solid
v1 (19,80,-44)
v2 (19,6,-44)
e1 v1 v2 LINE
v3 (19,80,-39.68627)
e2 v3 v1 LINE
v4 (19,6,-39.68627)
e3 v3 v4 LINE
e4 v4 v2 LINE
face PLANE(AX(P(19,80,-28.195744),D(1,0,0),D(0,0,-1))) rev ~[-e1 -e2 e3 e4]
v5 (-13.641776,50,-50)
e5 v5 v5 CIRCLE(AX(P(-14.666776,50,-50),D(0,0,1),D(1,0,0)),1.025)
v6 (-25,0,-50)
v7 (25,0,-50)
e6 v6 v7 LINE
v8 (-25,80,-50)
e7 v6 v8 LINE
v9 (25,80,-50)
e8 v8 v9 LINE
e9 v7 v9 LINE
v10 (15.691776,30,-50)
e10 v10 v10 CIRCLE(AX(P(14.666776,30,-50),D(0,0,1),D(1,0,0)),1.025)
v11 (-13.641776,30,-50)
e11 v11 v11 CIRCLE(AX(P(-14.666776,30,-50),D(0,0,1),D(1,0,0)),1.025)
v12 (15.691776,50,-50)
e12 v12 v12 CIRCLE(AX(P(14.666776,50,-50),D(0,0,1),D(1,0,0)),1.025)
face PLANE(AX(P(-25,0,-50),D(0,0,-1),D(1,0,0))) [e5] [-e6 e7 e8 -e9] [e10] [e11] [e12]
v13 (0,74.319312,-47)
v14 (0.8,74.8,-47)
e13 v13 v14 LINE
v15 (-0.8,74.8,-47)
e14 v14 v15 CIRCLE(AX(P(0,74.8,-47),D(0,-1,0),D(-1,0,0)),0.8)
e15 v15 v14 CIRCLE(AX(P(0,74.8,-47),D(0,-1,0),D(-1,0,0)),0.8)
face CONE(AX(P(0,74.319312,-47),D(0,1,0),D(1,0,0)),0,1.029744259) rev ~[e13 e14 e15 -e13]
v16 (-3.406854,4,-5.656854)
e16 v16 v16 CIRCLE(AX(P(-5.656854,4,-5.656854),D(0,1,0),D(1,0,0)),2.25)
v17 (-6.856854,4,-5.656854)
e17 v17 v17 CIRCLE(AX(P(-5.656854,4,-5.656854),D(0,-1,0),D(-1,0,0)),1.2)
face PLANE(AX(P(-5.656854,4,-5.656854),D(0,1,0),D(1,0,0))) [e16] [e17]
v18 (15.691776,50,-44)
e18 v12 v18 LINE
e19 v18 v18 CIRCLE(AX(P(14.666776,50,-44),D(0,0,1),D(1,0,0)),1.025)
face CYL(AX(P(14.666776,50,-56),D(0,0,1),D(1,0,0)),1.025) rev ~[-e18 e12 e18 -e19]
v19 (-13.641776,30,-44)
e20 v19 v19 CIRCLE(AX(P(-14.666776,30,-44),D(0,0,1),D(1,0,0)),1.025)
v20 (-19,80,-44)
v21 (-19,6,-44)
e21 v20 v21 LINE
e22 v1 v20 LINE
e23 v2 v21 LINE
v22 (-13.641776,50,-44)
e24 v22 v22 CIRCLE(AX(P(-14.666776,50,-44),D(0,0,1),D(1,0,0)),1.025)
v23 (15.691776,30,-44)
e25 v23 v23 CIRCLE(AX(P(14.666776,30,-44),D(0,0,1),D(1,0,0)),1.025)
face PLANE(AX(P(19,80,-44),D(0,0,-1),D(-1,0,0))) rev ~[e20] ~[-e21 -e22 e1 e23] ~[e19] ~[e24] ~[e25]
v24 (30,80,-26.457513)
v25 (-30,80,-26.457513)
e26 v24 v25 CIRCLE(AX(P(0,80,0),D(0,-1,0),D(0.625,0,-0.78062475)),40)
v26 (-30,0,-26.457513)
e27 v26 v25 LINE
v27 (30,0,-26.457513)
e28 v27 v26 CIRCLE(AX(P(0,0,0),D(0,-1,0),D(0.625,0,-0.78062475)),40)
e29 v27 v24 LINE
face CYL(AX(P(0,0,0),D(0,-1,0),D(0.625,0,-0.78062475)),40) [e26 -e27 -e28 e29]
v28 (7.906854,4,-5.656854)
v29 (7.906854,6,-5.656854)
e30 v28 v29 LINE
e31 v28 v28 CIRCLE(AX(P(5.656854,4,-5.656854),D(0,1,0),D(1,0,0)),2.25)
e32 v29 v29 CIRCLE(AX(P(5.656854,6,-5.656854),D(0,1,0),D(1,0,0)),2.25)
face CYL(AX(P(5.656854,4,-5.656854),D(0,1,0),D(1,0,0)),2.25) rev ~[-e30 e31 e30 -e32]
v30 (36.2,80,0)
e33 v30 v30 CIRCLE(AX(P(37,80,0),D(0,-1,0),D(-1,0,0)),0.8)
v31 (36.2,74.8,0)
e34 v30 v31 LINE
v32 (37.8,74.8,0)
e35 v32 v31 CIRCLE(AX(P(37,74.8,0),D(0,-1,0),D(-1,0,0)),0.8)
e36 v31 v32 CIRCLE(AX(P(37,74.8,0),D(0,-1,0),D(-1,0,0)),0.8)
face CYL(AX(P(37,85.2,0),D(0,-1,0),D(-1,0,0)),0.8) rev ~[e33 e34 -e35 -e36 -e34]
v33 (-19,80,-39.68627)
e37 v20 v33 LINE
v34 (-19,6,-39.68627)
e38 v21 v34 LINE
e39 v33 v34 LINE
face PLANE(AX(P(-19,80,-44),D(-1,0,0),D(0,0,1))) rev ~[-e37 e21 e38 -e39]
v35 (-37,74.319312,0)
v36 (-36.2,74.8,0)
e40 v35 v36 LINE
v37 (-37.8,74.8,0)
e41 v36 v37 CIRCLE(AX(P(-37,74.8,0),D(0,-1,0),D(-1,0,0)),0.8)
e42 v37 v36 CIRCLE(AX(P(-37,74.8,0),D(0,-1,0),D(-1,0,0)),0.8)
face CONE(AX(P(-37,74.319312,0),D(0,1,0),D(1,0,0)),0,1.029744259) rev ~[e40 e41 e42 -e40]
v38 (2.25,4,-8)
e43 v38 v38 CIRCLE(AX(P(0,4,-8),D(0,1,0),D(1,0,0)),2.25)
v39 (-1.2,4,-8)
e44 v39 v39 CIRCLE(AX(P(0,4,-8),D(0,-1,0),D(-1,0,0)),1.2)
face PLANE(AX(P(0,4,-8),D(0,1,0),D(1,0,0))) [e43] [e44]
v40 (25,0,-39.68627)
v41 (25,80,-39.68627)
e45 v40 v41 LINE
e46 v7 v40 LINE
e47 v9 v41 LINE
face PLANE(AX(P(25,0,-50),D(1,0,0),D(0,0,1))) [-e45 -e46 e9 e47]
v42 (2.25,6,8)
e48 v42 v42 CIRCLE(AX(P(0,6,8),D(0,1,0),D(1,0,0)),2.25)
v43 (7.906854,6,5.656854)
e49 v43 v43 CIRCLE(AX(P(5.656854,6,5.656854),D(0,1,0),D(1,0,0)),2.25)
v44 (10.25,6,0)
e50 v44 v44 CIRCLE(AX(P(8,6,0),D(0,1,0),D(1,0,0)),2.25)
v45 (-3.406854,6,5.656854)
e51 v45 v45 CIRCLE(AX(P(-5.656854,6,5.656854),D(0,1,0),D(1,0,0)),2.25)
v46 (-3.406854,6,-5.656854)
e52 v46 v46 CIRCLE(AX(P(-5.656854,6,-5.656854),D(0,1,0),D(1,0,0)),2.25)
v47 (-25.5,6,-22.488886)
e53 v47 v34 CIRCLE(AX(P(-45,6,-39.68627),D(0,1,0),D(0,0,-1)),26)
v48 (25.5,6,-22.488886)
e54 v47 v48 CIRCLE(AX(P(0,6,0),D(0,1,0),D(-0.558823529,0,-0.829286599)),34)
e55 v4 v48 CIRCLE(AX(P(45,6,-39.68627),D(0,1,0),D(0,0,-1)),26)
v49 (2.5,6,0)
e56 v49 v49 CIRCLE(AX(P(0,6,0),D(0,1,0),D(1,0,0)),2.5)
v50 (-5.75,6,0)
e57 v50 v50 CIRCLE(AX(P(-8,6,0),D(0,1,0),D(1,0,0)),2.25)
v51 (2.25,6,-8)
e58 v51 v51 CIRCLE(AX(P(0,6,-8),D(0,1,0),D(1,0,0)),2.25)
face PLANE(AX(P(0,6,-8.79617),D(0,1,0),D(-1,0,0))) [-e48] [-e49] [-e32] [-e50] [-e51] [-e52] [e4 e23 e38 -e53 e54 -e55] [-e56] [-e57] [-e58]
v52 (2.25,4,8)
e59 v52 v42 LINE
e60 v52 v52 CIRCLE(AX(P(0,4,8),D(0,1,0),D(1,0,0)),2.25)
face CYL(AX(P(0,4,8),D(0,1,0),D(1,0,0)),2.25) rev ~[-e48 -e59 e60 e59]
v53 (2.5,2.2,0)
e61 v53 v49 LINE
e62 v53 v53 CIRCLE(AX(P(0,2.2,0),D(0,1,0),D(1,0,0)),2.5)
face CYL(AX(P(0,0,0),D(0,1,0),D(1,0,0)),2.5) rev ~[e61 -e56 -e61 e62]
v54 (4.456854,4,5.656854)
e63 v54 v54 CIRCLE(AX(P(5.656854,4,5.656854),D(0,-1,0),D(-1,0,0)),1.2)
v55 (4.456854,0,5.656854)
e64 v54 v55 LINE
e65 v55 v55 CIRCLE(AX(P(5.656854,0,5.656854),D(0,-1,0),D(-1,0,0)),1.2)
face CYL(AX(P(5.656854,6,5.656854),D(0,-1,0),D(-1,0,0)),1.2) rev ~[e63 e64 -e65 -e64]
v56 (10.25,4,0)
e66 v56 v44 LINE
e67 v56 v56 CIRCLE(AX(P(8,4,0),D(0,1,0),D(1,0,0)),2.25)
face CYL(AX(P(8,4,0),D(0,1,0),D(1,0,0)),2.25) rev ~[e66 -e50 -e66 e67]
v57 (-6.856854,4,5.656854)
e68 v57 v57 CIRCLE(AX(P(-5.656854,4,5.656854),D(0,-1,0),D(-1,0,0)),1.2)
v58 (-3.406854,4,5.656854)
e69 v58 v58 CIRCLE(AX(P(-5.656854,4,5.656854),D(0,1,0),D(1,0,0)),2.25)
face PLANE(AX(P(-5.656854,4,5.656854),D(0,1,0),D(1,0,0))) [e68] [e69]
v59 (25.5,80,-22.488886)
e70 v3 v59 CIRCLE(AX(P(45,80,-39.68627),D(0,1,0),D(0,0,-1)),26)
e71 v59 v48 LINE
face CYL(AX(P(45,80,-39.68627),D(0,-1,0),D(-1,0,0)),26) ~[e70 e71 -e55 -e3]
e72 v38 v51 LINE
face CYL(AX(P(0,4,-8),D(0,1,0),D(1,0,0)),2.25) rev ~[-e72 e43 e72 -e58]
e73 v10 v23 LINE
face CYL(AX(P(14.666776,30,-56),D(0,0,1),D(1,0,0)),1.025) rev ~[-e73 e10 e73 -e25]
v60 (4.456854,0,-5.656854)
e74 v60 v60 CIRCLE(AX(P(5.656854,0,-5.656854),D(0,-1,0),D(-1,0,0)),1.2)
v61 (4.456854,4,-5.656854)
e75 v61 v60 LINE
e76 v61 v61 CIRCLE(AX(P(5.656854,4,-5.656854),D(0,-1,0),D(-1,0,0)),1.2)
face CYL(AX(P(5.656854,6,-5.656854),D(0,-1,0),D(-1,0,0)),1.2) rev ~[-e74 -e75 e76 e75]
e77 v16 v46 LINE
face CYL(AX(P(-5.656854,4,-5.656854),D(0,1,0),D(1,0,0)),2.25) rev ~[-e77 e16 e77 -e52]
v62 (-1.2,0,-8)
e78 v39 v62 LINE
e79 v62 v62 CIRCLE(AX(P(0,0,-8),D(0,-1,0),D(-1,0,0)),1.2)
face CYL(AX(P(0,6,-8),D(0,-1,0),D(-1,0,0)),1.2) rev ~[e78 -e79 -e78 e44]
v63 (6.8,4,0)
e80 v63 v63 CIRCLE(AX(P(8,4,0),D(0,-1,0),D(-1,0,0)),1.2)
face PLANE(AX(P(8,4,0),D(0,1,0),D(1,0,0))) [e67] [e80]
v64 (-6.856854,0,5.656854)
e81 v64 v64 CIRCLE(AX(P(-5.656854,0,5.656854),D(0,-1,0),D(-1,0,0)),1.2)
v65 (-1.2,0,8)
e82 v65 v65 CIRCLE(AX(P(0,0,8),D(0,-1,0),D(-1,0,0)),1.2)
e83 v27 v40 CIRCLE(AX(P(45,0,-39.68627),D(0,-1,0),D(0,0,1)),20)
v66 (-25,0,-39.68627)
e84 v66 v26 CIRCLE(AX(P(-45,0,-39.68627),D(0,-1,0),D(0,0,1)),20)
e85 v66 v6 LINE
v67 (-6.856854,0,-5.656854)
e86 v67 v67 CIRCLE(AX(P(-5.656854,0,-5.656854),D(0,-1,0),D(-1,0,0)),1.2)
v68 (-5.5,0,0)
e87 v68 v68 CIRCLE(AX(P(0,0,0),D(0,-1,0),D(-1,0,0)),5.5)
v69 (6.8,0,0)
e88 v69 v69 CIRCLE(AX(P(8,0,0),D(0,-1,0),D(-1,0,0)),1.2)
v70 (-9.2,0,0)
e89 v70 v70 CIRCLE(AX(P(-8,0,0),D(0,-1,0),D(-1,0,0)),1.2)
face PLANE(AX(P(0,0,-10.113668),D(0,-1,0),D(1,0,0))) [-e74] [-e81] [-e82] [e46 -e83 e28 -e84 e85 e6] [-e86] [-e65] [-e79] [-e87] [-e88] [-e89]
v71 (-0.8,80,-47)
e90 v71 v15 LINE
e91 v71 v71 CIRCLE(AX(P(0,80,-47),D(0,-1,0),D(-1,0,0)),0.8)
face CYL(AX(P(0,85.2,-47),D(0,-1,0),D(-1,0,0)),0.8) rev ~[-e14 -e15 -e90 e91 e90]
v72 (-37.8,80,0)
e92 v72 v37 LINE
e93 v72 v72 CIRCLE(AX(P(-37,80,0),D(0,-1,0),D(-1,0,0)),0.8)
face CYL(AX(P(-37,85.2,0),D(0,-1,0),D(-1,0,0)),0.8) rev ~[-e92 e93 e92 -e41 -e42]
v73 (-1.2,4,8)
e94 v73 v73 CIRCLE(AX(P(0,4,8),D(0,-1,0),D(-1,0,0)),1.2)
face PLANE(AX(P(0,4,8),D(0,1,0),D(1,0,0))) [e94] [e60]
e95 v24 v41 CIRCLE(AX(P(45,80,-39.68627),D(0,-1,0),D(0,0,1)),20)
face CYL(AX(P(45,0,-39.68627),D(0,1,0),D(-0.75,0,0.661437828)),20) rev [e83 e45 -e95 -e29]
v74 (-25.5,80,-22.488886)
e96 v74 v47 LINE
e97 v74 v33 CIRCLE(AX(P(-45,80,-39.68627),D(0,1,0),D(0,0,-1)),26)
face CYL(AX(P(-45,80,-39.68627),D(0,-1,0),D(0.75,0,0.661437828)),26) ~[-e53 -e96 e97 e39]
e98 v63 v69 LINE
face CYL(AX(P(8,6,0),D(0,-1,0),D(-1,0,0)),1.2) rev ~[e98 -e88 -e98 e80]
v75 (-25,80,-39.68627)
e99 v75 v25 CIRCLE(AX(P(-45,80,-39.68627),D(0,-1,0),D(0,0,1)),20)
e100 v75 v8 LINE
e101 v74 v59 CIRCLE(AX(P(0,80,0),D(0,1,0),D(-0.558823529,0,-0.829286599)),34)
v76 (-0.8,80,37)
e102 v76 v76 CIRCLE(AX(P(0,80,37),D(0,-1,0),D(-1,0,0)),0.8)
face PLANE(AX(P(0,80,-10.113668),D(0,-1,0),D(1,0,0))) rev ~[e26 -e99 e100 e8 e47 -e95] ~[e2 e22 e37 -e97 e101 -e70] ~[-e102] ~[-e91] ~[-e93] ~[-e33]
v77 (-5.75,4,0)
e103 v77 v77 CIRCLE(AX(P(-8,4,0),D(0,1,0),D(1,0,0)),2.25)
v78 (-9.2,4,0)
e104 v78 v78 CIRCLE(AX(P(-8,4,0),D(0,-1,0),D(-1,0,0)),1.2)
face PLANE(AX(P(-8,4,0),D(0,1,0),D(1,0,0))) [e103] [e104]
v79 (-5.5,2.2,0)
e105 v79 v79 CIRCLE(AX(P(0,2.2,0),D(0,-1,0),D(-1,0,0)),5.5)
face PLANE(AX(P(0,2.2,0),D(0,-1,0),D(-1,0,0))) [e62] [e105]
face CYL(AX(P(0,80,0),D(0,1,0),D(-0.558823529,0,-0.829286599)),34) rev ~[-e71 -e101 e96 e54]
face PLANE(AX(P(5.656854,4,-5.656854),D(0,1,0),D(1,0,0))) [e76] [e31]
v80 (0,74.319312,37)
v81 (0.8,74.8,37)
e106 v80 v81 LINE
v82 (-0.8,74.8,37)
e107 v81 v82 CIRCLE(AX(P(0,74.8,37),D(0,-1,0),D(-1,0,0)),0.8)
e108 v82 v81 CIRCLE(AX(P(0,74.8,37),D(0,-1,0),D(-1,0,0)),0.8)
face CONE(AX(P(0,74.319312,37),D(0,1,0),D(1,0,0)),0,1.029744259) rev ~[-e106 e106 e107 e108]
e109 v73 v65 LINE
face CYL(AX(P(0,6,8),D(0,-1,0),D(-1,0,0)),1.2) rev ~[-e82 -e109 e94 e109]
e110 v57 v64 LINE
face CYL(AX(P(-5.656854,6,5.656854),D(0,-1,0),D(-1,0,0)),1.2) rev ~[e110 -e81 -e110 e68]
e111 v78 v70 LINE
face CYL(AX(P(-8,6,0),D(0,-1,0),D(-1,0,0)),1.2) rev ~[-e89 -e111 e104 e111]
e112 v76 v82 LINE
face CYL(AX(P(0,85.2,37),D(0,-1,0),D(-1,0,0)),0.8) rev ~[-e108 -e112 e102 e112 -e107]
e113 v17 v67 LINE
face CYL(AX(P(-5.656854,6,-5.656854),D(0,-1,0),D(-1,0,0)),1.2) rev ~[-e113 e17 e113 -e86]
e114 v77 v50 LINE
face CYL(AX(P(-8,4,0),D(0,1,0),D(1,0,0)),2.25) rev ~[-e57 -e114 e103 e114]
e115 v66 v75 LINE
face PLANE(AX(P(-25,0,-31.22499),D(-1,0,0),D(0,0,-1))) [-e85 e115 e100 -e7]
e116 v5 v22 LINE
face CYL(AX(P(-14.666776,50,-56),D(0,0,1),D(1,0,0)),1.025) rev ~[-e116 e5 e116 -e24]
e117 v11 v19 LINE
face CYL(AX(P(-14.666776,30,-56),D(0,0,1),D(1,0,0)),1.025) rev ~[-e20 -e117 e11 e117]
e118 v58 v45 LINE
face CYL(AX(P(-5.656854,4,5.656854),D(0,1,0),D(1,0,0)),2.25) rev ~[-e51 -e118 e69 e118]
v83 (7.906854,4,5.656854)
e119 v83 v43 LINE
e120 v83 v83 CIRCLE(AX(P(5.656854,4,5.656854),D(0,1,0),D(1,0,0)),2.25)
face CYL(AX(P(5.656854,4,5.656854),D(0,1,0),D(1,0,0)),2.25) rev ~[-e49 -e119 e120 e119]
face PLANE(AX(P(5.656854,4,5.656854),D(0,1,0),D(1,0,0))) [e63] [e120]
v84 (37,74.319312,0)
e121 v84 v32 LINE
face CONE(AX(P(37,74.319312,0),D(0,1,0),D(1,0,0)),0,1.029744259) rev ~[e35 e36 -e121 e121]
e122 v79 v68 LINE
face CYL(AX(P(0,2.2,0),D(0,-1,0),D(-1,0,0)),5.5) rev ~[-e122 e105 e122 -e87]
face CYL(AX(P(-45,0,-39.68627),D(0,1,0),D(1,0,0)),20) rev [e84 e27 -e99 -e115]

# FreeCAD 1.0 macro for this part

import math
import FreeCAD as App
import Part
import Sketcher

V = App.Vector


def edges_at(feature, points):
    """Names of the edges that pass closest to the given points."""
    edges = feature.Shape.Edges
    near = lambda p: min(range(len(edges)), key=lambda i: edges[i].distToShape(Part.Vertex(*p))[0])
    return sorted({f"Edge{near(p) + 1}" for p in points})

doc = App.newDocument("Part")
params = doc.addObject("Spreadsheet::Sheet", "Params")
for row, (alias, value) in enumerate([
    ("sketch1_radius", "40 mm"),
    ("sketch1_width", "50 mm"),
    ("pad1_length", "80 mm"),
    ("sketch2_radius", "34 mm"),
    ("sketch2_width", "38 mm"),
    ("pocket1_length", "74 mm"),
    ("sketch3_diameter", "2.05 mm"),
    ("hole_diameter", "2.05 mm"),
    ("hole_depth", "6 mm"),
    ("sketch4_diameter", "1.6 mm"),
    ("hole2_diameter", "1.6 mm"),
    ("hole2_depth", "5.2 mm"),
    ("sketch5_diameter", "2.4 mm"),
    ("hole3_diameter", "2.4 mm"),
    ("hole3_depth", "6 mm"),
    ("hole3_cbore_diameter", "4.5 mm"),
    ("hole3_cbore_depth", "2 mm"),
    ("sketch6_diameter", "5 mm"),
    ("hole4_diameter", "5 mm"),
    ("hole4_depth", "80 mm"),
    ("hole4_cbore_diameter", "11 mm"),
    ("hole4_cbore_depth", "2.2 mm"),
    ("fillet_radius", "20 mm"),
    ("fillet2_radius", "26 mm"),
], start=1):
    params.set(f"A{row}", alias)
    params.set(f"B{row}", "=" + value)
    params.setAlias(f"B{row}", alias)

body = doc.addObject("PartDesign::Body", "Body")

# Sketch on XZ plane
sketch1 = body.newObject("Sketcher::SketchObject", "Sketch")
sketch1.AttachmentSupport = (doc.getObject("XZ_Plane"), [""])
sketch1.MapMode = "FlatFace"
sketch1.addGeometry([
    Part.LineSegment(V(-25, -31, 0), V(-25, -50, 0)),
    Part.LineSegment(V(-25, -50, 0), V(25, -50, 0)),
    Part.LineSegment(V(25, -50, 0), V(25, -31, 0)),
    Part.ArcOfCircle(Part.Circle(V(0, 0, 0), V(0, 0, 1), 40), math.radians(-51), math.radians(231)),
], False)
sketch1.addConstraint([
    Sketcher.Constraint("Coincident", 0, 2, 1, 1),
    Sketcher.Constraint("Coincident", 1, 2, 2, 1),
    Sketcher.Constraint("Coincident", 2, 2, 3, 1),
    Sketcher.Constraint("Coincident", 3, 2, 0, 1),
    Sketcher.Constraint("Vertical", 0),
    Sketcher.Constraint("Horizontal", 1),
    Sketcher.Constraint("Vertical", 2),
    Sketcher.Constraint("Coincident", 3, 3, -1, 1),
    Sketcher.Constraint("Horizontal", 2, 2, 3, 2),
    Sketcher.Constraint("Radius", 3, 40.0),
    Sketcher.Constraint("DistanceX", 1, 1, 1, 2, 50.0),
    Sketcher.Constraint("DistanceY", 0, 2, -1, 1, 50.0),
])
sketch1.setExpression("Constraints[9]", "Params.sketch1_radius")
sketch1.setExpression("Constraints[10]", "Params.sketch1_width")
pad1 = body.newObject("PartDesign::Pad", "Pad")
pad1.Profile = sketch1
pad1.setExpression("Length", "Params.pad1_length")
pad1.Reversed = True

# Sketch on XZ plane
sketch2 = body.newObject("Sketcher::SketchObject", "Sketch001")
sketch2.AttachmentSupport = (doc.getObject("XZ_Plane"), [""])
sketch2.MapMode = "FlatFace"
sketch2.AttachmentOffset = App.Placement(V(0, 0, -80), App.Rotation())
sketch2.addGeometry([
    Part.LineSegment(V(19, -44, 0), V(-19, -44, 0)),
    Part.LineSegment(V(-19, -44, 0), V(-19, -28, 0)),
    Part.ArcOfCircle(Part.Circle(V(0, 0, 0), V(0, 0, 1), 34), math.radians(-56), math.radians(236)),
    Part.LineSegment(V(19, -28, 0), V(19, -44, 0)),
], False)
sketch2.addConstraint([
    Sketcher.Constraint("Coincident", 0, 2, 1, 1),
    Sketcher.Constraint("Coincident", 1, 2, 2, 2),
    Sketcher.Constraint("Coincident", 2, 1, 3, 1),
    Sketcher.Constraint("Coincident", 3, 2, 0, 1),
    Sketcher.Constraint("Horizontal", 0),
    Sketcher.Constraint("Vertical", 1),
    Sketcher.Constraint("Vertical", 3),
    Sketcher.Constraint("Coincident", 2, 3, -1, 1),
    Sketcher.Constraint("Horizontal", 1, 2, 2, 1),
    Sketcher.Constraint("Radius", 2, 34.0),
    Sketcher.Constraint("DistanceX", 0, 2, 0, 1, 38.0),
    Sketcher.Constraint("DistanceY", 0, 2, -1, 1, 44.0),
])
sketch2.setExpression("Constraints[9]", "Params.sketch2_radius")
sketch2.setExpression("Constraints[10]", "Params.sketch2_width")
pocket1 = body.newObject("PartDesign::Pocket", "Pocket")
pocket1.Profile = sketch2
pocket1.setExpression("Length", "Params.pocket1_length")
pocket1.Reversed = True

# Sketch on XY plane
sketch3 = body.newObject("Sketcher::SketchObject", "Sketch002")
sketch3.AttachmentSupport = (doc.getObject("XY_Plane"), [""])
sketch3.MapMode = "FlatFace"
sketch3.AttachmentOffset = App.Placement(V(0, 0, -50), App.Rotation())
sketch3.addGeometry([
    Part.Circle(V(14.7, 50, 0), V(0, 0, 1), 1),
    Part.Circle(V(14.7, 30, 0), V(0, 0, 1), 1),
    Part.Circle(V(-14.7, 50, 0), V(0, 0, 1), 1),
    Part.Circle(V(-14.7, 30, 0), V(0, 0, 1), 1),
], False)
sketch3.addConstraint([
    Sketcher.Constraint("Equal", 0, 1),
    Sketcher.Constraint("Equal", 1, 2),
    Sketcher.Constraint("Equal", 2, 3),
    Sketcher.Constraint("Symmetric", 0, 3, 2, 3, -2),
    Sketcher.Constraint("Symmetric", 1, 3, 3, 3, -2),
    Sketcher.Constraint("Vertical", 0, 3, 1, 3),
    Sketcher.Constraint("Diameter", 0, 2.05),
    Sketcher.Constraint("DistanceY", -1, 1, 0, 3, 50.0),
    Sketcher.Constraint("DistanceY", -1, 1, 1, 3, 30.0),
    Sketcher.Constraint("DistanceX", -1, 1, 0, 3, 14.666776),
])
sketch3.setExpression("Constraints[6]", "Params.sketch3_diameter")
doc.recompute()
hole = body.newObject("PartDesign::Hole", "Hole")
hole.Profile = sketch3
hole.ThreadType = "None"
hole.setExpression("Diameter", "Params.hole_diameter")
hole.DepthType = "Dimension"
hole.setExpression("Depth", "Params.hole_depth")
hole.DrillPoint = "Flat"
hole.Reversed = True

# Sketch on XZ plane
sketch4 = body.newObject("Sketcher::SketchObject", "Sketch003")
sketch4.AttachmentSupport = (doc.getObject("XZ_Plane"), [""])
sketch4.MapMode = "FlatFace"
sketch4.AttachmentOffset = App.Placement(V(0, 0, -80), App.Rotation())
sketch4.addGeometry([
    Part.Circle(V(0, -47, 0), V(0, 0, 1), 0.8),
    Part.Circle(V(-37, 0, 0), V(0, 0, 1), 0.8),
    Part.Circle(V(37, 0, 0), V(0, 0, 1), 0.8),
    Part.Circle(V(0, 37, 0), V(0, 0, 1), 0.8),
], False)
sketch4.addConstraint([
    Sketcher.Constraint("Equal", 0, 1),
    Sketcher.Constraint("Equal", 1, 2),
    Sketcher.Constraint("Equal", 2, 3),
    Sketcher.Constraint("Symmetric", 1, 3, 2, 3, -1, 1),
    Sketcher.Constraint("PointOnObject", 0, 3, -2),
    Sketcher.Constraint("PointOnObject", 1, 3, -1),
    Sketcher.Constraint("PointOnObject", 3, 3, -2),
    Sketcher.Constraint("Diameter", 0, 1.6),
    Sketcher.Constraint("DistanceY", 0, 3, -1, 1, 47.0),
    Sketcher.Constraint("DistanceX", 1, 3, -1, 1, 37.0),
    Sketcher.Constraint("DistanceY", -1, 1, 3, 3, 37.0),
])
sketch4.setExpression("Constraints[7]", "Params.sketch4_diameter")
doc.recompute()
hole2 = body.newObject("PartDesign::Hole", "Hole001")
hole2.Profile = sketch4
hole2.ThreadType = "None"
hole2.setExpression("Diameter", "Params.hole2_diameter")
hole2.DepthType = "Dimension"
hole2.setExpression("Depth", "Params.hole2_depth")
hole2.DrillPoint = "Angled"
hole2.DrillPointAngle = 118
hole2.Reversed = True

# Sketch on XZ plane
sketch5 = body.newObject("Sketcher::SketchObject", "Sketch004")
sketch5.AttachmentSupport = (doc.getObject("XZ_Plane"), [""])
sketch5.MapMode = "FlatFace"
sketch5.AttachmentOffset = App.Placement(V(0, 0, -6), App.Rotation())
sketch5.addGeometry([
    Part.Circle(V(0, -8, 0), V(0, 0, 1), 1.2),  # 0
    Part.Circle(V(5.7, -5.7, 0), V(0, 0, 1), 1.2),  # 1
    Part.Circle(V(8, 0, 0), V(0, 0, 1), 1.2),  # 2
    Part.Circle(V(5.7, 5.7, 0), V(0, 0, 1), 1.2),  # 3
    Part.Circle(V(0, 8, 0), V(0, 0, 1), 1.2),  # 4
    Part.Circle(V(-5.7, 5.7, 0), V(0, 0, 1), 1.2),  # 5
    Part.Circle(V(-8, 0, 0), V(0, 0, 1), 1.2),  # 6
    Part.Circle(V(-5.7, -5.7, 0), V(0, 0, 1), 1.2),  # 7
], False)
sketch5.addConstraint([
    Sketcher.Constraint("Equal", 0, 1),
    Sketcher.Constraint("Equal", 1, 2),
    Sketcher.Constraint("Equal", 2, 3),
    Sketcher.Constraint("Equal", 3, 4),
    Sketcher.Constraint("Equal", 4, 5),
    Sketcher.Constraint("Equal", 5, 6),
    Sketcher.Constraint("Equal", 6, 7),
    Sketcher.Constraint("Symmetric", 0, 3, 4, 3, -1, 1),
    Sketcher.Constraint("Symmetric", 1, 3, 5, 3, -1, 1),
    Sketcher.Constraint("Symmetric", 2, 3, 6, 3, -1, 1),
    Sketcher.Constraint("Symmetric", 3, 3, 7, 3, -1, 1),
    Sketcher.Constraint("Symmetric", 3, 3, 5, 3, -2),
    Sketcher.Constraint("PointOnObject", 0, 3, -2),
    Sketcher.Constraint("PointOnObject", 2, 3, -1),
    Sketcher.Constraint("Diameter", 0, 2.4),
    Sketcher.Constraint("DistanceY", 0, 3, -1, 1, 8.0),
    Sketcher.Constraint("DistanceX", -1, 1, 2, 3, 8.0),
    Sketcher.Constraint("DistanceY", 1, 3, 3, 3, 11.313708),
    Sketcher.Constraint("DistanceX", 5, 3, 3, 3, 11.313708),
])
sketch5.setExpression("Constraints[14]", "Params.sketch5_diameter")
doc.recompute()
hole3 = body.newObject("PartDesign::Hole", "Hole002")
hole3.Profile = sketch5
hole3.ThreadType = "None"
hole3.setExpression("Diameter", "Params.hole3_diameter")
hole3.DepthType = "Dimension"
hole3.setExpression("Depth", "Params.hole3_depth")
hole3.DrillPoint = "Flat"
hole3.HoleCutType = "Counterbore"
hole3.setExpression("HoleCutDiameter", "Params.hole3_cbore_diameter")
hole3.setExpression("HoleCutDepth", "Params.hole3_cbore_depth")
hole3.Reversed = True

# Sketch on XZ plane
sketch6 = body.newObject("Sketcher::SketchObject", "Sketch005")
sketch6.AttachmentSupport = (doc.getObject("XZ_Plane"), [""])
sketch6.MapMode = "FlatFace"
sketch6.addGeometry(Part.Circle(V(0, 0, 0), V(0, 0, 1), 2.5), False)
sketch6.addConstraint([
    Sketcher.Constraint("Coincident", 0, 3, -1, 1),
    Sketcher.Constraint("Diameter", 0, 5.0),
])
sketch6.setExpression("Constraints[1]", "Params.sketch6_diameter")
doc.recompute()
hole4 = body.newObject("PartDesign::Hole", "Hole003")
hole4.Profile = sketch6
hole4.ThreadType = "None"
hole4.setExpression("Diameter", "Params.hole4_diameter")
hole4.DepthType = "Dimension"
hole4.setExpression("Depth", "Params.hole4_depth")
hole4.DrillPoint = "Flat"
hole4.HoleCutType = "Counterbore"
hole4.setExpression("HoleCutDiameter", "Params.hole4_cbore_diameter")
hole4.setExpression("HoleCutDepth", "Params.hole4_cbore_depth")
doc.recompute()

fillet = body.newObject("PartDesign::Fillet", "Fillet")
fillet.Base = (hole4, edges_at(hole4, [(25, 40, -31.225), (-25, 40, -31.225)]))
fillet.setExpression("Radius", "Params.fillet_radius")
doc.recompute()

fillet2 = body.newObject("PartDesign::Fillet", "Fillet001")
fillet2.Base = (fillet, edges_at(fillet, [(19, 43, -28.196), (-19, 43, -28.196)]))
fillet2.setExpression("Radius", "Params.fillet2_radius")

doc.recompute()
